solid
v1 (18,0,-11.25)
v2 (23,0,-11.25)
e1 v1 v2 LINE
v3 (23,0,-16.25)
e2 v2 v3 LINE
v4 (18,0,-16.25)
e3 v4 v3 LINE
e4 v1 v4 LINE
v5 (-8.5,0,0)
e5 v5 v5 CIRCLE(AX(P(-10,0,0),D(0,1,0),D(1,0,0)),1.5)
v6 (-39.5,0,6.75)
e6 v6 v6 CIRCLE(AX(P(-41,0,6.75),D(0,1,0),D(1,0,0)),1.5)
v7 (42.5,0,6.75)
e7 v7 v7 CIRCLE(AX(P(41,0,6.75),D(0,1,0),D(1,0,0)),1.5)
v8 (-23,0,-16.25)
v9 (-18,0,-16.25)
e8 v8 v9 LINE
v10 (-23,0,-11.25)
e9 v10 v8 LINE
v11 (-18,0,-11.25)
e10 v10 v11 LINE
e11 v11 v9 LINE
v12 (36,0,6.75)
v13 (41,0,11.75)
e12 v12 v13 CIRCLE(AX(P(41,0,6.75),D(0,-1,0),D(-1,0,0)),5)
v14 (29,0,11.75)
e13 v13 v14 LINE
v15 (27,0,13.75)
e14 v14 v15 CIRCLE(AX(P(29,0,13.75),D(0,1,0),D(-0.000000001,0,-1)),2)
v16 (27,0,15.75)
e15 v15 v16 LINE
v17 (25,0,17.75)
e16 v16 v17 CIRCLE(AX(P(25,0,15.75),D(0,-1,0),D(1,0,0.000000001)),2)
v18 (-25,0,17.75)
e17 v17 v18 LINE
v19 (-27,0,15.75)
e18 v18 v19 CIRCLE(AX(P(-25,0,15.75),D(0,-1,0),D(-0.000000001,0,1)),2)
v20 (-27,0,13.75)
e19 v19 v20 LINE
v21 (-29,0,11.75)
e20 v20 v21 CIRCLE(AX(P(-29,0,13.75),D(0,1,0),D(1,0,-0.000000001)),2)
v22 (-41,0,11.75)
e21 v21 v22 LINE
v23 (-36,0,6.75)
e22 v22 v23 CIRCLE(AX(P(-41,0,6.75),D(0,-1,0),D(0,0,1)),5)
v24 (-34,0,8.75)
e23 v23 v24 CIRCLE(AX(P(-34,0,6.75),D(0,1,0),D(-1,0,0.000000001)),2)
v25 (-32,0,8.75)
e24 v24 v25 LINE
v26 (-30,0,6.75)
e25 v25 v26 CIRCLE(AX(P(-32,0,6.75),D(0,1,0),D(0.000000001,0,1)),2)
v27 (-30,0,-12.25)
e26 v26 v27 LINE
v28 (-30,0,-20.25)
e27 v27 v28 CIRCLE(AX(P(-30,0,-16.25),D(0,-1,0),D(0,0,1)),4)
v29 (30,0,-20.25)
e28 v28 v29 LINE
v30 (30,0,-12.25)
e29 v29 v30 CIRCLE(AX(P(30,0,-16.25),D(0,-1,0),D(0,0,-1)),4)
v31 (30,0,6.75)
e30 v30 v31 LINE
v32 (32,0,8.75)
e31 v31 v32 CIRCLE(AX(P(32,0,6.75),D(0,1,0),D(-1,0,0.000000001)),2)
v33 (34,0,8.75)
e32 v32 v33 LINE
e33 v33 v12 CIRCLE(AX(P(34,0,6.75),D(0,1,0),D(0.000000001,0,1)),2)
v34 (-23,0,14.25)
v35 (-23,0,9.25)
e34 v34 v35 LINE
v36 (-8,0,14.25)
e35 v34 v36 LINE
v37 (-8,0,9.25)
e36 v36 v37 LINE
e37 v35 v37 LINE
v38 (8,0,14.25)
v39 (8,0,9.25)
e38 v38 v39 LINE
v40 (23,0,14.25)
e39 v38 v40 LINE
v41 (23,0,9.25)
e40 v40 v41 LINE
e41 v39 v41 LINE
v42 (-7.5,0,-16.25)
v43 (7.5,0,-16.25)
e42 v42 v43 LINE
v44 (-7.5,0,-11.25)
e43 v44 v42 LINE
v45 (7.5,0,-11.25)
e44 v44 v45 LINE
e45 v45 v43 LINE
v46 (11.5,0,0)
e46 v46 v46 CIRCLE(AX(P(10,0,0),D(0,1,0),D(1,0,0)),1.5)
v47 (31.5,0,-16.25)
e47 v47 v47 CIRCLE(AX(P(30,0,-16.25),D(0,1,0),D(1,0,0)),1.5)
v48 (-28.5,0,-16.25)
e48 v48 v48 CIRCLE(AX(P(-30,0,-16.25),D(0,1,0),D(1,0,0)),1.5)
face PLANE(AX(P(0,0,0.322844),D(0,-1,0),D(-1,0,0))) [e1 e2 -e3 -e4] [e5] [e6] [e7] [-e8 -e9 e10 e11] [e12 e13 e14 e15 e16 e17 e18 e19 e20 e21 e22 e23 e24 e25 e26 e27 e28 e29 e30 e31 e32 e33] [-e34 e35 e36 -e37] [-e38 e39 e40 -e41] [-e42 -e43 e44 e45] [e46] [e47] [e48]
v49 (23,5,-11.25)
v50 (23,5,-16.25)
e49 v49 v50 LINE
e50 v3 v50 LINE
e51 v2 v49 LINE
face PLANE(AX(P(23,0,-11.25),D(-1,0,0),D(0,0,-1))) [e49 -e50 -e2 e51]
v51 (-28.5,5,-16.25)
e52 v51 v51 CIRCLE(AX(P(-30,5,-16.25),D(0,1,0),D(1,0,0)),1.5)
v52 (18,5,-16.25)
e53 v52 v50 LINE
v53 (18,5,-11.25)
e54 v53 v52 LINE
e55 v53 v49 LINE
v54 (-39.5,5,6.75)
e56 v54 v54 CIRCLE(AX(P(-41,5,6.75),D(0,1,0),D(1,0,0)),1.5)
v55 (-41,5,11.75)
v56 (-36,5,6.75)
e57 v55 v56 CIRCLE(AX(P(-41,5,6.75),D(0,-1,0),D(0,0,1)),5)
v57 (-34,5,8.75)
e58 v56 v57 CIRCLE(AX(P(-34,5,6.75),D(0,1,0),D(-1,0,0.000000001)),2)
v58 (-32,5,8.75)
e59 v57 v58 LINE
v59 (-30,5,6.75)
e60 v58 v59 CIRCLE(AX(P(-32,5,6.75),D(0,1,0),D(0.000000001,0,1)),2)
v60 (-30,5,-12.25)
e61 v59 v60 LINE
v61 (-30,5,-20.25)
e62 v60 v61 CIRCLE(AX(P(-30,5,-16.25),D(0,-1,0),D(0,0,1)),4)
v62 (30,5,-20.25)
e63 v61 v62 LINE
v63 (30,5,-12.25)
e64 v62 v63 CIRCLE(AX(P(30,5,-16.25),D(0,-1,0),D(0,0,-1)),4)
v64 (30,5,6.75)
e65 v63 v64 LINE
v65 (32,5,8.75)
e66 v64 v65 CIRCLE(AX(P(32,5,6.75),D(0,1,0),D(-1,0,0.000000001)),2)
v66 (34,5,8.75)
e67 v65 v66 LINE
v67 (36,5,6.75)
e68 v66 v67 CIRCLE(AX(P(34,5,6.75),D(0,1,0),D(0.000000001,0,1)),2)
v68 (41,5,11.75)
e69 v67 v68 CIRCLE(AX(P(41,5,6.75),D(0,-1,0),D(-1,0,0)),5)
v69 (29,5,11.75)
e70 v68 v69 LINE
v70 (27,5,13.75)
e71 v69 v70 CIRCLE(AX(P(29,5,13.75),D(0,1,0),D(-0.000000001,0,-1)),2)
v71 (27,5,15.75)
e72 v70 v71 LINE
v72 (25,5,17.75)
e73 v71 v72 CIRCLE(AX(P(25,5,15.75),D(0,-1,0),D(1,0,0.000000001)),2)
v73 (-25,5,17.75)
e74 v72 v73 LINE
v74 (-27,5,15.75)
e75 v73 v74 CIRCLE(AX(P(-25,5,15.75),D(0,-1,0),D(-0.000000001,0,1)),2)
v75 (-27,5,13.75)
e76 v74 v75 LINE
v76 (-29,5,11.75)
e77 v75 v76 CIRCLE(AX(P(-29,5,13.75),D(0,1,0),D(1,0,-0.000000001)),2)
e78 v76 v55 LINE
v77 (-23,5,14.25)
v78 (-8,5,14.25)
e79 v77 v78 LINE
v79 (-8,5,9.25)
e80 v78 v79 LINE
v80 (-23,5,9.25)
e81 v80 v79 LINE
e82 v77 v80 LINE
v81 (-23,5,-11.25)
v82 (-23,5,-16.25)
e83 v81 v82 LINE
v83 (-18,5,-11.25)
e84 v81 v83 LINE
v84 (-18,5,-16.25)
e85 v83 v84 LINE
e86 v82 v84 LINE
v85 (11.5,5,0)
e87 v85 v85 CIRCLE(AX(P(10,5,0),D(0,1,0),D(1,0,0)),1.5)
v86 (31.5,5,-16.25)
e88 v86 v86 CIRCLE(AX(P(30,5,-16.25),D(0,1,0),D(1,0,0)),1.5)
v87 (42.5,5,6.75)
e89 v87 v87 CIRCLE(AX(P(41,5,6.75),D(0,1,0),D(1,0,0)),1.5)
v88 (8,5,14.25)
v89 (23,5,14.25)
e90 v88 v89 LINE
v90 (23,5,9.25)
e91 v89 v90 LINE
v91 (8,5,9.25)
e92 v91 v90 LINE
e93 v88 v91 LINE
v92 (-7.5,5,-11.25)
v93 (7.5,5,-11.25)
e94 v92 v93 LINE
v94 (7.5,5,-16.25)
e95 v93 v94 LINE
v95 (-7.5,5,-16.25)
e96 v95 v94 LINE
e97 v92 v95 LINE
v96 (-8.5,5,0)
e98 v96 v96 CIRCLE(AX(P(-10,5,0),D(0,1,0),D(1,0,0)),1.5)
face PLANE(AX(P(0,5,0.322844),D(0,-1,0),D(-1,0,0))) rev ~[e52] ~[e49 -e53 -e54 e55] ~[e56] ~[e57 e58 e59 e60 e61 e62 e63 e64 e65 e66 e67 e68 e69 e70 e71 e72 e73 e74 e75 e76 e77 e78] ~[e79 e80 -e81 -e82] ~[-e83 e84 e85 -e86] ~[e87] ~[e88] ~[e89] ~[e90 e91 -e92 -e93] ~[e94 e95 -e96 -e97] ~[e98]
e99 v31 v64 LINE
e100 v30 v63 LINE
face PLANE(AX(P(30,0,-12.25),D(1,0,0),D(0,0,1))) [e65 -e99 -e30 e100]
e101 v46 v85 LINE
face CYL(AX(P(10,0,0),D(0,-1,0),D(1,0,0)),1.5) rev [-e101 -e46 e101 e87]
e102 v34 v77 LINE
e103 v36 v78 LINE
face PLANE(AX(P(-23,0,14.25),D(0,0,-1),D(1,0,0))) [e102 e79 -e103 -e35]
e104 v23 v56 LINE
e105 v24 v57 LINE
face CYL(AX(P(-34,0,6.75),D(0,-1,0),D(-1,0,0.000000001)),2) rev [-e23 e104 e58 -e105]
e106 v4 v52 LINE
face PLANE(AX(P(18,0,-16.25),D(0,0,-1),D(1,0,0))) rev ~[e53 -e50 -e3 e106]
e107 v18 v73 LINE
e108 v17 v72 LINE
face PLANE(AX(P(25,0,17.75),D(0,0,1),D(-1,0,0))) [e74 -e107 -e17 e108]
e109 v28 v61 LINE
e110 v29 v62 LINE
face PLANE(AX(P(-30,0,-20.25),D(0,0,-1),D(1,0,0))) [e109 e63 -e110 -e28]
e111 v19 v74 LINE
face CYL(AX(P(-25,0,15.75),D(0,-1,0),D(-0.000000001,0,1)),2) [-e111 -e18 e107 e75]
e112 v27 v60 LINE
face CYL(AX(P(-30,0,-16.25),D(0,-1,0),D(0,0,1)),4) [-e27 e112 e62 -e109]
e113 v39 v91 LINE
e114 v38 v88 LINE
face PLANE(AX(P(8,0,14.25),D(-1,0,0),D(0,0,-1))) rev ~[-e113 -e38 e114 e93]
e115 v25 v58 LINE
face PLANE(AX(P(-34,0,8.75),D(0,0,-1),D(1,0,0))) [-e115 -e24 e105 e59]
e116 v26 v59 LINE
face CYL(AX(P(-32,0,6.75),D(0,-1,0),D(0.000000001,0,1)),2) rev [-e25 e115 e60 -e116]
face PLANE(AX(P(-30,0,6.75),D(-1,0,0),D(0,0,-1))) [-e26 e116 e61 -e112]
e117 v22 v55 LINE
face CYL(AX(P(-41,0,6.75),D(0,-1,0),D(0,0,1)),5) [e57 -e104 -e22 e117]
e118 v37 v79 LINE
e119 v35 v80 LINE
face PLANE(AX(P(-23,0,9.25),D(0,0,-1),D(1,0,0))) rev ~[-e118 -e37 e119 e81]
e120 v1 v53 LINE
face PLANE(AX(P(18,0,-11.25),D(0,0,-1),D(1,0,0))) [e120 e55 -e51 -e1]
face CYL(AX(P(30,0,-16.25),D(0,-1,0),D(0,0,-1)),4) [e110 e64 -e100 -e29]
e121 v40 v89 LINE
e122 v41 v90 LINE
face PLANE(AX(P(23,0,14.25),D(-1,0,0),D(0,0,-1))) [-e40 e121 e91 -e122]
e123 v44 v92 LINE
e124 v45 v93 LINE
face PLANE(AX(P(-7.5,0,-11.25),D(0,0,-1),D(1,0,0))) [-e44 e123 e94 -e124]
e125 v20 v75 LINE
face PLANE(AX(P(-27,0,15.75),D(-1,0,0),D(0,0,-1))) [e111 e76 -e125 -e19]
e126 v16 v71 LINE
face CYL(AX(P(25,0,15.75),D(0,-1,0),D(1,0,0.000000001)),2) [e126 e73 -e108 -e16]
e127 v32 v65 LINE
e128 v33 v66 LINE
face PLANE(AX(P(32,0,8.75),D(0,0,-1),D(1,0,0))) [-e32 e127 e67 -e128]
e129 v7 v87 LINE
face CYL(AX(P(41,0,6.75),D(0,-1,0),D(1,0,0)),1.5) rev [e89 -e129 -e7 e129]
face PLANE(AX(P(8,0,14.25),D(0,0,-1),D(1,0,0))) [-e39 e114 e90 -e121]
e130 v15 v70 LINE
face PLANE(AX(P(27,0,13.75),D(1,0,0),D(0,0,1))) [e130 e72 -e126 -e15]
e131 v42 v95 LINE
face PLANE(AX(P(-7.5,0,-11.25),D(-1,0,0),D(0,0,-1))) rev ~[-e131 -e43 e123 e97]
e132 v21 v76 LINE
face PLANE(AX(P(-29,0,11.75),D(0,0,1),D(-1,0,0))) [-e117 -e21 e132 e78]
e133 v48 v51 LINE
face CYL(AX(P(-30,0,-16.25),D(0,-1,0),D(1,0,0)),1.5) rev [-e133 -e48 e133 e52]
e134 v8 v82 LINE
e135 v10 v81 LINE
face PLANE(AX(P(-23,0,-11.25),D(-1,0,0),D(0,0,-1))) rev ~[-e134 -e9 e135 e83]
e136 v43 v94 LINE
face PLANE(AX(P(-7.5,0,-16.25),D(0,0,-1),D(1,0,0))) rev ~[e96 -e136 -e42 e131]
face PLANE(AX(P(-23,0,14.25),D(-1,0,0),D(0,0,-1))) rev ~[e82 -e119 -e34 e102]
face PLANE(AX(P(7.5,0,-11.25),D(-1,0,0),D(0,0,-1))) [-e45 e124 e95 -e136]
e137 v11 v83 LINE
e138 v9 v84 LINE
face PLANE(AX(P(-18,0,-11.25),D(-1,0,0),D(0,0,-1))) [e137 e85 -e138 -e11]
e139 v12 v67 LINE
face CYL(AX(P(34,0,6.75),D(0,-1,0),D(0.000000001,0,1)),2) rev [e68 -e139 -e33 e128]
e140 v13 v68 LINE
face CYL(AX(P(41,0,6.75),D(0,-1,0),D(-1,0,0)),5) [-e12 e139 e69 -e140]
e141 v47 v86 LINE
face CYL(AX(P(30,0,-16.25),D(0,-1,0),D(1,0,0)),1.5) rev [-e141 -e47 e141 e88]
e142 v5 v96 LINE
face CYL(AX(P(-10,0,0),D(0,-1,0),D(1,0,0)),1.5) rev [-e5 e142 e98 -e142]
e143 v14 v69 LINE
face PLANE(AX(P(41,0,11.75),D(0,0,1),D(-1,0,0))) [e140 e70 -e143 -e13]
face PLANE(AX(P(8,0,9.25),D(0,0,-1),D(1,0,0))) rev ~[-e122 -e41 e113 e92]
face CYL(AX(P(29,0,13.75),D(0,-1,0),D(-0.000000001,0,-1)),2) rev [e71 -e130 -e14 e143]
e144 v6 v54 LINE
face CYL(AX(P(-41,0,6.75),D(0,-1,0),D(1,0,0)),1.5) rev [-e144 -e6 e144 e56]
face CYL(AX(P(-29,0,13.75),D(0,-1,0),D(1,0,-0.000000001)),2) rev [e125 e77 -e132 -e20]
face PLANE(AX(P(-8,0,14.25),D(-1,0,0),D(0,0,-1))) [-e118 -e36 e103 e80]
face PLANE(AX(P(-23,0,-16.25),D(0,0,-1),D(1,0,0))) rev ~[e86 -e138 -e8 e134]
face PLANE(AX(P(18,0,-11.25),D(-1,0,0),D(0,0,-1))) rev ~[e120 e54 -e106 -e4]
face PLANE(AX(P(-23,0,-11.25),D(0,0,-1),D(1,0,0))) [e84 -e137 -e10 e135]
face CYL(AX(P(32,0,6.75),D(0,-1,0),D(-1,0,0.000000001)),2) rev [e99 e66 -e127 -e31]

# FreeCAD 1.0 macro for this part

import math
import FreeCAD as App
import Part
import Sketcher
Q = App.Units.Quantity


def add_polygon(sketch, points):
    """Adds a closed chain of lines whose ends are joined by coincident constraints."""
    first, n = sketch.GeometryCount, len(points)
    for a, b in zip(points, points[1:] + points[:1]):
        sketch.addGeometry(Part.LineSegment(App.Vector(*a, 0), App.Vector(*b, 0)), False)
    for i in range(n):
        sketch.addConstraint(Sketcher.Constraint("Coincident", first + i, 2, first + (i + 1) % n, 1))

doc = App.newDocument("Part")
params = doc.addObject("Spreadsheet::Sheet", "Params")
for row, (alias, value) in enumerate([
    ("sketch1_diameter", "3 mm"),
    ("sketch1_radius", "2 mm"),
    ("sketch1_radius2", "5 mm"),
    ("sketch1_radius3", "4 mm"),
    ("sketch1_width", "12 mm"),
    ("pad1_length", "5 mm"),
], start=1):
    params.set(f"A{row}", alias)
    params.set(f"B{row}", "=" + value)
    params.setAlias(f"B{row}", alias)

body = doc.addObject("PartDesign::Body", "Body")

# Sketch on XZ plane
sketch1 = body.newObject("Sketcher::SketchObject", "Sketch")
sketch1.AttachmentSupport = (doc.getObject("XZ_Plane"), [""])
sketch1.MapMode = "FlatFace"
sketch1.addGeometry(Part.LineSegment(App.Vector(-41, 11.8, 0), App.Vector(-29, 11.8, 0)), False)  # 0
sketch1.addGeometry(Part.ArcOfCircle(Part.Circle(App.Vector(-29, 13.8, 0), App.Vector(0, 0, 1), 2), math.radians(-90), math.radians(0)), False)  # 1
sketch1.addGeometry(Part.LineSegment(App.Vector(-27, 13.8, 0), App.Vector(-27, 15.8, 0)), False)  # 2
sketch1.addGeometry(Part.ArcOfCircle(Part.Circle(App.Vector(-25, 15.7, 0), App.Vector(0, 0, 1), 2), math.radians(90), math.radians(180)), False)  # 3
sketch1.addGeometry(Part.LineSegment(App.Vector(-25, 17.8, 0), App.Vector(25, 17.8, 0)), False)  # 4
sketch1.addGeometry(Part.ArcOfCircle(Part.Circle(App.Vector(25, 15.7, 0), App.Vector(0, 0, 1), 2), math.radians(0), math.radians(90)), False)  # 5
sketch1.addGeometry(Part.LineSegment(App.Vector(27, 15.8, 0), App.Vector(27, 13.8, 0)), False)  # 6
sketch1.addGeometry(Part.ArcOfCircle(Part.Circle(App.Vector(29, 13.8, 0), App.Vector(0, 0, 1), 2), math.radians(-180), math.radians(-90)), False)  # 7
sketch1.addGeometry(Part.LineSegment(App.Vector(29, 11.8, 0), App.Vector(41, 11.8, 0)), False)  # 8
sketch1.addGeometry(Part.ArcOfCircle(Part.Circle(App.Vector(41, 6.8, 0), App.Vector(0, 0, 1), 5), math.radians(180), math.radians(450)), False)  # 9
sketch1.addGeometry(Part.ArcOfCircle(Part.Circle(App.Vector(34, 6.7, 0), App.Vector(0, 0, 1), 2), math.radians(0), math.radians(90)), False)  # 10
sketch1.addGeometry(Part.LineSegment(App.Vector(34, 8.8, 0), App.Vector(32, 8.8, 0)), False)  # 11
sketch1.addGeometry(Part.ArcOfCircle(Part.Circle(App.Vector(32, 6.7, 0), App.Vector(0, 0, 1), 2), math.radians(90), math.radians(180)), False)  # 12
sketch1.addGeometry(Part.LineSegment(App.Vector(30, 6.8, 0), App.Vector(30, -12.2, 0)), False)  # 13
sketch1.addGeometry(Part.ArcOfCircle(Part.Circle(App.Vector(30, -16.2, 0), App.Vector(0, 0, 1), 4), math.radians(-90), math.radians(90)), False)  # 14
sketch1.addGeometry(Part.LineSegment(App.Vector(30, -20.2, 0), App.Vector(-30, -20.2, 0)), False)  # 15
sketch1.addGeometry(Part.ArcOfCircle(Part.Circle(App.Vector(-30, -16.2, 0), App.Vector(0, 0, 1), 4), math.radians(90), math.radians(270)), False)  # 16
sketch1.addGeometry(Part.LineSegment(App.Vector(-30, -12.2, 0), App.Vector(-30, 6.8, 0)), False)  # 17
sketch1.addGeometry(Part.ArcOfCircle(Part.Circle(App.Vector(-32, 6.7, 0), App.Vector(0, 0, 1), 2), math.radians(0), math.radians(90)), False)  # 18
sketch1.addGeometry(Part.LineSegment(App.Vector(-32, 8.8, 0), App.Vector(-34, 8.8, 0)), False)  # 19
sketch1.addGeometry(Part.ArcOfCircle(Part.Circle(App.Vector(-34, 6.7, 0), App.Vector(0, 0, 1), 2), math.radians(90), math.radians(180)), False)  # 20
sketch1.addGeometry(Part.ArcOfCircle(Part.Circle(App.Vector(-41, 6.8, 0), App.Vector(0, 0, 1), 5), math.radians(90), math.radians(360)), False)  # 21
sketch1.addGeometry(Part.Circle(App.Vector(41, 6.8, 0), App.Vector(0, 0, 1), 1.5), False)  # 22
add_polygon(sketch1, [(8, 14.2), (8, 9.2), (23, 9.2), (23, 14.2)])  # lines 23-26
sketch1.addGeometry(Part.Circle(App.Vector(10, 0, 0), App.Vector(0, 0, 1), 1.5), False)  # 27
add_polygon(sketch1, [(-23, 14.2), (-23, 9.2), (-8, 9.2), (-8, 14.2)])  # lines 28-31
sketch1.addGeometry(Part.Circle(App.Vector(-41, 6.8, 0), App.Vector(0, 0, 1), 1.5), False)  # 32
sketch1.addGeometry(Part.Circle(App.Vector(-10, 0, 0), App.Vector(0, 0, 1), 1.5), False)  # 33
sketch1.addGeometry(Part.Circle(App.Vector(30, -16.2, 0), App.Vector(0, 0, 1), 1.5), False)  # 34
add_polygon(sketch1, [(18, -11.2), (18, -16.2), (23, -16.2), (23, -11.2)])  # lines 35-38
add_polygon(sketch1, [(-7.5, -11.2), (-7.5, -16.2), (7.5, -16.2), (7.5, -11.2)])  # lines 39-42
add_polygon(sketch1, [(-23, -11.2), (-23, -16.2), (-18, -16.2), (-18, -11.2)])  # lines 43-46
sketch1.addGeometry(Part.Circle(App.Vector(-30, -16.2, 0), App.Vector(0, 0, 1), 1.5), False)  # 47
sketch1.addConstraint([
    Sketcher.Constraint("Tangent", 0, 2, 1, 1),
    Sketcher.Constraint("Tangent", 1, 2, 2, 1),
    Sketcher.Constraint("Tangent", 2, 2, 3, 2),
    Sketcher.Constraint("Tangent", 3, 1, 4, 1),
    Sketcher.Constraint("Tangent", 4, 2, 5, 2),
    Sketcher.Constraint("Tangent", 5, 1, 6, 1),
    Sketcher.Constraint("Tangent", 6, 2, 7, 1),
    Sketcher.Constraint("Tangent", 7, 2, 8, 1),
    Sketcher.Constraint("Tangent", 8, 2, 9, 2),
    Sketcher.Constraint("Tangent", 9, 1, 10, 1),
    Sketcher.Constraint("Tangent", 10, 2, 11, 1),
    Sketcher.Constraint("Tangent", 11, 2, 12, 1),
    Sketcher.Constraint("Tangent", 12, 2, 13, 1),
    Sketcher.Constraint("Coincident", 13, 2, 14, 2),
    Sketcher.Constraint("Tangent", 14, 1, 15, 1),
    Sketcher.Constraint("Tangent", 15, 2, 16, 2),
    Sketcher.Constraint("Coincident", 16, 1, 17, 1),
    Sketcher.Constraint("Tangent", 17, 2, 18, 1),
    Sketcher.Constraint("Tangent", 18, 2, 19, 1),
    Sketcher.Constraint("Tangent", 19, 2, 20, 1),
    Sketcher.Constraint("Tangent", 20, 2, 21, 2),
    Sketcher.Constraint("Tangent", 21, 1, 0, 1),
    Sketcher.Constraint("Horizontal", 0),
    Sketcher.Constraint("Vertical", 2),
    Sketcher.Constraint("Horizontal", 4),
    Sketcher.Constraint("Vertical", 6),
    Sketcher.Constraint("Horizontal", 8),
    Sketcher.Constraint("Horizontal", 11),
    Sketcher.Constraint("Vertical", 13),
    Sketcher.Constraint("Horizontal", 15),
    Sketcher.Constraint("Vertical", 17),
    Sketcher.Constraint("Horizontal", 19),
    Sketcher.Constraint("Vertical", 23),
    Sketcher.Constraint("Horizontal", 24),
    Sketcher.Constraint("Vertical", 25),
    Sketcher.Constraint("Horizontal", 26),
    Sketcher.Constraint("Vertical", 28),
    Sketcher.Constraint("Horizontal", 29),
    Sketcher.Constraint("Vertical", 30),
    Sketcher.Constraint("Horizontal", 31),
    Sketcher.Constraint("Vertical", 35),
    Sketcher.Constraint("Horizontal", 36),
    Sketcher.Constraint("Vertical", 37),
    Sketcher.Constraint("Horizontal", 38),
    Sketcher.Constraint("Vertical", 39),
    Sketcher.Constraint("Horizontal", 40),
    Sketcher.Constraint("Vertical", 41),
    Sketcher.Constraint("Horizontal", 42),
    Sketcher.Constraint("Vertical", 43),
    Sketcher.Constraint("Horizontal", 44),
    Sketcher.Constraint("Vertical", 45),
    Sketcher.Constraint("Horizontal", 46),
    Sketcher.Constraint("Coincident", 22, 3, 9, 3),
    Sketcher.Constraint("Coincident", 32, 3, 21, 3),
    Sketcher.Constraint("Coincident", 34, 3, 14, 3),
    Sketcher.Constraint("Coincident", 47, 3, 16, 3),
    Sketcher.Constraint("Equal", 1, 3),
    Sketcher.Constraint("Equal", 3, 5),
    Sketcher.Constraint("Equal", 5, 7),
    Sketcher.Constraint("Equal", 7, 10),
    Sketcher.Constraint("Equal", 10, 12),
    Sketcher.Constraint("Equal", 14, 16),
    Sketcher.Constraint("Equal", 12, 18),
    Sketcher.Constraint("Equal", 18, 20),
    Sketcher.Constraint("Equal", 9, 21),
    Sketcher.Constraint("Equal", 22, 27),
    Sketcher.Constraint("Equal", 27, 32),
    Sketcher.Constraint("Equal", 32, 33),
    Sketcher.Constraint("Equal", 33, 34),
    Sketcher.Constraint("Equal", 34, 47),
    Sketcher.Constraint("Symmetric", 27, 3, 33, 3, -1, 1),
    Sketcher.Constraint("Symmetric", 1, 3, 7, 3, -2),
    Sketcher.Constraint("Symmetric", 12, 3, 18, 3, -2),
    Sketcher.Constraint("Symmetric", 24, 2, 28, 2, -2),
    Sketcher.Constraint("Symmetric", 26, 2, 30, 2, -2),
    Sketcher.Constraint("Symmetric", 36, 2, 43, 2, -2),
    Sketcher.Constraint("Symmetric", 38, 2, 45, 2, -2),
    Sketcher.Constraint("PointOnObject", 27, 3, -1),
    Sketcher.Constraint("Horizontal", 9, 3, 10, 3),
    Sketcher.Constraint("Horizontal", 47, 3, 35, 2),
    Sketcher.Constraint("Horizontal", 36, 2, 39, 2),
    Sketcher.Constraint("Horizontal", 38, 2, 41, 2),
    Sketcher.Constraint("Vertical", 34, 3, 12, 2),
    Sketcher.Constraint("Vertical", 15, 2, 16, 1),
    Sketcher.Constraint("Vertical", 25, 2, 36, 2),
    Sketcher.Constraint("Equal", 0, 8),
    Sketcher.Constraint("Equal", 31, 40),
    Sketcher.Constraint("Equal", 19, 2),
    Sketcher.Constraint("Equal", 46, 23),
    Sketcher.Constraint("Equal", 30, 35),
    Sketcher.Constraint("Diameter", 22, Q("3 mm")),
    Sketcher.Constraint("Radius", 1, Q("2 mm")),
    Sketcher.Constraint("Radius", 9, Q("5 mm")),
    Sketcher.Constraint("Radius", 14, Q("4 mm")),
    Sketcher.Constraint("DistanceX", 0, 1, 0, 2, Q("12 mm")),
    Sketcher.Constraint("DistanceX", 4, 1, 4, 2, Q("50 mm")),
    Sketcher.Constraint("DistanceX", 11, 2, 11, 1, Q("2 mm")),
    Sketcher.Constraint("DistanceX", 24, 1, 24, 2, Q("15 mm")),
    Sketcher.Constraint("DistanceX", 36, 1, 36, 2, Q("5 mm")),
    Sketcher.Constraint("DistanceY", 13, 2, 13, 1, Q("19 mm")),
    Sketcher.Constraint("DistanceX", -1, 1, 27, 3, Q("10 mm")),
    Sketcher.Constraint("DistanceX", -1, 1, 23, 2, Q("8 mm")),
    Sketcher.Constraint("DistanceX", 39, 2, -1, 1, Q("7.5 mm")),
    Sketcher.Constraint("DistanceY", 23, 2, 5, 3, Q("6.5 mm")),
    Sketcher.Constraint("DistanceY", -1, 1, 1, 3, Q("13.75 mm")),
])
sketch1.setExpression("Constraints[110]", "Params.sketch1_diameter")
sketch1.setExpression("Constraints[111]", "Params.sketch1_radius")
sketch1.setExpression("Constraints[112]", "Params.sketch1_radius2")
sketch1.setExpression("Constraints[113]", "Params.sketch1_radius3")
sketch1.setExpression("Constraints[114]", "Params.sketch1_width")
pad1 = body.newObject("PartDesign::Pad", "Pad")
pad1.Profile = sketch1
pad1.setExpression("Length", "Params.pad1_length")
pad1.Reversed = True

doc.recompute()
